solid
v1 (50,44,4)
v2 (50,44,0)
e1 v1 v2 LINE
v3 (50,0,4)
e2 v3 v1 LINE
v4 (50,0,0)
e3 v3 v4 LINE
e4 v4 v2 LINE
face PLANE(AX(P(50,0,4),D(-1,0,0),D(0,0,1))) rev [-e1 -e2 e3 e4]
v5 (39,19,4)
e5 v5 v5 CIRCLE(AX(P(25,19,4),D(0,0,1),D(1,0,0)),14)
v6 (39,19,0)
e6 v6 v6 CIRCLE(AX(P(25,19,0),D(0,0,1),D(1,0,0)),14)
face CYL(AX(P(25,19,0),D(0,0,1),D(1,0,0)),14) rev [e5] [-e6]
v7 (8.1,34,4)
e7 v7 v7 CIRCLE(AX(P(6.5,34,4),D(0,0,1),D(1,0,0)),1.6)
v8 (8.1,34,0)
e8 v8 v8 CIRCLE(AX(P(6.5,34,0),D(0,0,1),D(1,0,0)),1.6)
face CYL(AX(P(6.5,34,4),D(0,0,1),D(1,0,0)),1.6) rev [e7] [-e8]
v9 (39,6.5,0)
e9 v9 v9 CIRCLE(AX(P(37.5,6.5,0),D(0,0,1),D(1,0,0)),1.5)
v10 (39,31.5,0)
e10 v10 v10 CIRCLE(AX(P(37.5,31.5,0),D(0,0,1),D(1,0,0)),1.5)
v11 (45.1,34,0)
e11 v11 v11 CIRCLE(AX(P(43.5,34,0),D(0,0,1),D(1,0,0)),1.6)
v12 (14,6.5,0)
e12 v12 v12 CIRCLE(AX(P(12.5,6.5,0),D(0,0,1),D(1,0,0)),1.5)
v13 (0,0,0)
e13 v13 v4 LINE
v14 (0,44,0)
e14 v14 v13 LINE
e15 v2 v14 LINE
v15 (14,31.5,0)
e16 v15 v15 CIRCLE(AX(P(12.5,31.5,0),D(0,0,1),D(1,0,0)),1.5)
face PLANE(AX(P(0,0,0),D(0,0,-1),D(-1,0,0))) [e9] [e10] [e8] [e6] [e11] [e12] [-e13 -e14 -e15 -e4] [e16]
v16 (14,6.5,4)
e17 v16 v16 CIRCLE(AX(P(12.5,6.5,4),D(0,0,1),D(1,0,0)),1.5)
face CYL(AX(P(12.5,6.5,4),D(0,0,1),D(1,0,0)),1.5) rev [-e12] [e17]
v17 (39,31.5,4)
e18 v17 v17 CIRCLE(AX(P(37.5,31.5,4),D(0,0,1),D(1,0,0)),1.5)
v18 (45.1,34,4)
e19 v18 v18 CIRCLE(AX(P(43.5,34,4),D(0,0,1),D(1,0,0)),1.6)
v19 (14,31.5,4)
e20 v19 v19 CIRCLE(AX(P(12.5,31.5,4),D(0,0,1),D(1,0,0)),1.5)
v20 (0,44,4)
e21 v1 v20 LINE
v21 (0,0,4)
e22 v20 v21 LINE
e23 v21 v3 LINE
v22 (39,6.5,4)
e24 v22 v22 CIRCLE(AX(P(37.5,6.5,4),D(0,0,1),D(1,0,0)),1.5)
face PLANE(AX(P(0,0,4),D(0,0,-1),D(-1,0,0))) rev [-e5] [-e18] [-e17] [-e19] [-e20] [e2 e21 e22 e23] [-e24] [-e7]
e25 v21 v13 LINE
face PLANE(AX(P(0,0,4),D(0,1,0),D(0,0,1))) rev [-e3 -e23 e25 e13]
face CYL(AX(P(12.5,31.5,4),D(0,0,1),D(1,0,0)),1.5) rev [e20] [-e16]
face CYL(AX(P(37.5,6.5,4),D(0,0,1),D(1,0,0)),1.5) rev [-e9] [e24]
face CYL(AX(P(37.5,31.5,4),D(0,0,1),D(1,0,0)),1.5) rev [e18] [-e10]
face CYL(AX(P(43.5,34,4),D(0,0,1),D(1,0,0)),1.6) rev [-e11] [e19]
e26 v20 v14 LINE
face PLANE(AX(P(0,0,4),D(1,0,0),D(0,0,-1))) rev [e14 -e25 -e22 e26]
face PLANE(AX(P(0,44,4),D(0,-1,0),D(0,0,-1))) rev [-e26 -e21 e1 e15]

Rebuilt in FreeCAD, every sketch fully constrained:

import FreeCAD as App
import Part
import Sketcher


def add_polygon(sketch, points):
    """Adds a closed chain of lines whose ends are joined by coincident constraints."""
    first, n = sketch.GeometryCount, len(points)
    for a, b in zip(points, points[1:] + points[:1]):
        sketch.addGeometry(Part.LineSegment(App.Vector(*a, 0), App.Vector(*b, 0)), False)
    for i in range(n):
        sketch.addConstraint(Sketcher.Constraint("Coincident", first + i, 2, first + (i + 1) % n, 1))

doc = App.newDocument("Part")
params = doc.addObject("Spreadsheet::Sheet", "Params")
for row, (alias, value) in enumerate([
    ("sketch1_width", "50 mm"),
    ("sketch1_height", "44 mm"),
    ("pad1_length", "4 mm"),
    ("sketch2_diameter", "3.2 mm"),
    ("hole_diameter", "3.2 mm"),
    ("sketch3_diameter", "28 mm"),
    ("pocket1_length", "4 mm"),
    ("sketch4_diameter", "3 mm"),
    ("hole2_diameter", "3 mm"),
], start=1):
    params.set(f"A{row}", alias)
    params.set(f"B{row}", "=" + value)
    params.setAlias(f"B{row}", alias)

body = doc.addObject("PartDesign::Body", "Body")

# Sketch on XY plane
sketch1 = body.newObject("Sketcher::SketchObject", "Sketch")
sketch1.AttachmentSupport = (doc.getObject("XY_Plane"), [""])
sketch1.MapMode = "FlatFace"
add_polygon(sketch1, [(0, 44), (0, 0), (50, 0), (50, 44)])  # lines 0-3
sketch1.addConstraint([
    Sketcher.Constraint("Vertical", 0),
    Sketcher.Constraint("Horizontal", 1),
    Sketcher.Constraint("Vertical", 2),
    Sketcher.Constraint("Horizontal", 3),
    Sketcher.Constraint("Coincident", 0, 2, -1, 1),
    Sketcher.Constraint("DistanceX", 1, 1, 1, 2, 50.0),
    Sketcher.Constraint("DistanceY", 0, 2, 0, 1, 44.0),
])
sketch1.setExpression("Constraints[9]", "Params.sketch1_width")
sketch1.setExpression("Constraints[10]", "Params.sketch1_height")
pad1 = body.newObject("PartDesign::Pad", "Pad")
pad1.Profile = sketch1
pad1.setExpression("Length", "Params.pad1_length")

# Sketch on XY plane
sketch2 = body.newObject("Sketcher::SketchObject", "Sketch001")
sketch2.AttachmentSupport = (doc.getObject("XY_Plane"), [""])
sketch2.MapMode = "FlatFace"
sketch2.AttachmentOffset = App.Placement(App.Vector(0, 0, 4), App.Rotation())
sketch2.addGeometry([
    Part.Circle(App.Vector(6.5, 34, 0), App.Vector(0, 0, 1), 1.6),
    Part.Circle(App.Vector(43.5, 34, 0), App.Vector(0, 0, 1), 1.6),
], False)
sketch2.addConstraint([
    Sketcher.Constraint("Equal", 0, 1),
    Sketcher.Constraint("Horizontal", 0, 3, 1, 3),
    Sketcher.Constraint("Diameter", 0, 3.2),
    Sketcher.Constraint("DistanceY", -1, 1, 0, 3, 34.0),
    Sketcher.Constraint("DistanceX", 0, 3, 1, 3, 37.0),
    Sketcher.Constraint("DistanceX", -1, 1, 0, 3, 6.5),
])
sketch2.setExpression("Constraints[2]", "Params.sketch2_diameter")
doc.recompute()
hole = body.newObject("PartDesign::Hole", "Hole")
hole.Profile = sketch2
hole.ThreadType = "None"
hole.setExpression("Diameter", "Params.hole_diameter")
hole.DepthType = "ThroughAll"

# Sketch on XY plane
sketch3 = body.newObject("Sketcher::SketchObject", "Sketch002")
sketch3.AttachmentSupport = (doc.getObject("XY_Plane"), [""])
sketch3.MapMode = "FlatFace"
sketch3.AttachmentOffset = App.Placement(App.Vector(0, 0, 4), App.Rotation())
sketch3.addGeometry(Part.Circle(App.Vector(25, 19, 0), App.Vector(0, 0, 1), 14), False)
sketch3.addConstraint([
    Sketcher.Constraint("Diameter", 0, 28.0),
    Sketcher.Constraint("DistanceX", -1, 1, 0, 3, 25.0),
    Sketcher.Constraint("DistanceY", -1, 1, 0, 3, 19.0),
])
sketch3.setExpression("Constraints[0]", "Params.sketch3_diameter")
pocket1 = body.newObject("PartDesign::Pocket", "Pocket")
pocket1.Profile = sketch3
pocket1.setExpression("Length", "Params.pocket1_length")

# Sketch on XY plane
sketch4 = body.newObject("Sketcher::SketchObject", "Sketch003")
sketch4.AttachmentSupport = (doc.getObject("XY_Plane"), [""])
sketch4.MapMode = "FlatFace"
sketch4.AttachmentOffset = App.Placement(App.Vector(0, 0, 4), App.Rotation())
sketch4.addGeometry([
    Part.Circle(App.Vector(12.5, 31.5, 0), App.Vector(0, 0, 1), 1.5),  # 0
    Part.Circle(App.Vector(25, 19, 0), App.Vector(0, 0, 1), 1.5),  # 1
    Part.Circle(App.Vector(37.5, 31.5, 0), App.Vector(0, 0, 1), 1.5),  # 2
    Part.Circle(App.Vector(37.5, 6.5, 0), App.Vector(0, 0, 1), 1.5),  # 3
    Part.Circle(App.Vector(12.5, 6.5, 0), App.Vector(0, 0, 1), 1.5),  # 4
], False)
sketch4.addConstraint([
    Sketcher.Constraint("Equal", 0, 1),
    Sketcher.Constraint("Equal", 1, 2),
    Sketcher.Constraint("Equal", 2, 3),
    Sketcher.Constraint("Equal", 3, 4),
    Sketcher.Constraint("Horizontal", 0, 3, 2, 3),
    Sketcher.Constraint("Horizontal", 3, 3, 4, 3),
    Sketcher.Constraint("Vertical", 2, 3, 3, 3),
    Sketcher.Constraint("Vertical", 0, 3, 4, 3),
    Sketcher.Constraint("Diameter", 0, 3.0),
    Sketcher.Constraint("DistanceX", -1, 1, 1, 3, 25.0),
    Sketcher.Constraint("DistanceY", -1, 1, 1, 3, 19.0),
    Sketcher.Constraint("DistanceX", 0, 3, 2, 3, 25.0),
    Sketcher.Constraint("DistanceY", 3, 3, 2, 3, 25.0),
    Sketcher.Constraint("DistanceX", -1, 1, 0, 3, 12.5),
    Sketcher.Constraint("DistanceY", -1, 1, 0, 3, 31.5),
])
sketch4.setExpression("Constraints[8]", "Params.sketch4_diameter")
doc.recompute()
hole2 = body.newObject("PartDesign::Hole", "Hole001")
hole2.Profile = sketch4
hole2.ThreadType = "None"
hole2.setExpression("Diameter", "Params.hole2_diameter")
hole2.DepthType = "ThroughAll"

doc.recompute()
